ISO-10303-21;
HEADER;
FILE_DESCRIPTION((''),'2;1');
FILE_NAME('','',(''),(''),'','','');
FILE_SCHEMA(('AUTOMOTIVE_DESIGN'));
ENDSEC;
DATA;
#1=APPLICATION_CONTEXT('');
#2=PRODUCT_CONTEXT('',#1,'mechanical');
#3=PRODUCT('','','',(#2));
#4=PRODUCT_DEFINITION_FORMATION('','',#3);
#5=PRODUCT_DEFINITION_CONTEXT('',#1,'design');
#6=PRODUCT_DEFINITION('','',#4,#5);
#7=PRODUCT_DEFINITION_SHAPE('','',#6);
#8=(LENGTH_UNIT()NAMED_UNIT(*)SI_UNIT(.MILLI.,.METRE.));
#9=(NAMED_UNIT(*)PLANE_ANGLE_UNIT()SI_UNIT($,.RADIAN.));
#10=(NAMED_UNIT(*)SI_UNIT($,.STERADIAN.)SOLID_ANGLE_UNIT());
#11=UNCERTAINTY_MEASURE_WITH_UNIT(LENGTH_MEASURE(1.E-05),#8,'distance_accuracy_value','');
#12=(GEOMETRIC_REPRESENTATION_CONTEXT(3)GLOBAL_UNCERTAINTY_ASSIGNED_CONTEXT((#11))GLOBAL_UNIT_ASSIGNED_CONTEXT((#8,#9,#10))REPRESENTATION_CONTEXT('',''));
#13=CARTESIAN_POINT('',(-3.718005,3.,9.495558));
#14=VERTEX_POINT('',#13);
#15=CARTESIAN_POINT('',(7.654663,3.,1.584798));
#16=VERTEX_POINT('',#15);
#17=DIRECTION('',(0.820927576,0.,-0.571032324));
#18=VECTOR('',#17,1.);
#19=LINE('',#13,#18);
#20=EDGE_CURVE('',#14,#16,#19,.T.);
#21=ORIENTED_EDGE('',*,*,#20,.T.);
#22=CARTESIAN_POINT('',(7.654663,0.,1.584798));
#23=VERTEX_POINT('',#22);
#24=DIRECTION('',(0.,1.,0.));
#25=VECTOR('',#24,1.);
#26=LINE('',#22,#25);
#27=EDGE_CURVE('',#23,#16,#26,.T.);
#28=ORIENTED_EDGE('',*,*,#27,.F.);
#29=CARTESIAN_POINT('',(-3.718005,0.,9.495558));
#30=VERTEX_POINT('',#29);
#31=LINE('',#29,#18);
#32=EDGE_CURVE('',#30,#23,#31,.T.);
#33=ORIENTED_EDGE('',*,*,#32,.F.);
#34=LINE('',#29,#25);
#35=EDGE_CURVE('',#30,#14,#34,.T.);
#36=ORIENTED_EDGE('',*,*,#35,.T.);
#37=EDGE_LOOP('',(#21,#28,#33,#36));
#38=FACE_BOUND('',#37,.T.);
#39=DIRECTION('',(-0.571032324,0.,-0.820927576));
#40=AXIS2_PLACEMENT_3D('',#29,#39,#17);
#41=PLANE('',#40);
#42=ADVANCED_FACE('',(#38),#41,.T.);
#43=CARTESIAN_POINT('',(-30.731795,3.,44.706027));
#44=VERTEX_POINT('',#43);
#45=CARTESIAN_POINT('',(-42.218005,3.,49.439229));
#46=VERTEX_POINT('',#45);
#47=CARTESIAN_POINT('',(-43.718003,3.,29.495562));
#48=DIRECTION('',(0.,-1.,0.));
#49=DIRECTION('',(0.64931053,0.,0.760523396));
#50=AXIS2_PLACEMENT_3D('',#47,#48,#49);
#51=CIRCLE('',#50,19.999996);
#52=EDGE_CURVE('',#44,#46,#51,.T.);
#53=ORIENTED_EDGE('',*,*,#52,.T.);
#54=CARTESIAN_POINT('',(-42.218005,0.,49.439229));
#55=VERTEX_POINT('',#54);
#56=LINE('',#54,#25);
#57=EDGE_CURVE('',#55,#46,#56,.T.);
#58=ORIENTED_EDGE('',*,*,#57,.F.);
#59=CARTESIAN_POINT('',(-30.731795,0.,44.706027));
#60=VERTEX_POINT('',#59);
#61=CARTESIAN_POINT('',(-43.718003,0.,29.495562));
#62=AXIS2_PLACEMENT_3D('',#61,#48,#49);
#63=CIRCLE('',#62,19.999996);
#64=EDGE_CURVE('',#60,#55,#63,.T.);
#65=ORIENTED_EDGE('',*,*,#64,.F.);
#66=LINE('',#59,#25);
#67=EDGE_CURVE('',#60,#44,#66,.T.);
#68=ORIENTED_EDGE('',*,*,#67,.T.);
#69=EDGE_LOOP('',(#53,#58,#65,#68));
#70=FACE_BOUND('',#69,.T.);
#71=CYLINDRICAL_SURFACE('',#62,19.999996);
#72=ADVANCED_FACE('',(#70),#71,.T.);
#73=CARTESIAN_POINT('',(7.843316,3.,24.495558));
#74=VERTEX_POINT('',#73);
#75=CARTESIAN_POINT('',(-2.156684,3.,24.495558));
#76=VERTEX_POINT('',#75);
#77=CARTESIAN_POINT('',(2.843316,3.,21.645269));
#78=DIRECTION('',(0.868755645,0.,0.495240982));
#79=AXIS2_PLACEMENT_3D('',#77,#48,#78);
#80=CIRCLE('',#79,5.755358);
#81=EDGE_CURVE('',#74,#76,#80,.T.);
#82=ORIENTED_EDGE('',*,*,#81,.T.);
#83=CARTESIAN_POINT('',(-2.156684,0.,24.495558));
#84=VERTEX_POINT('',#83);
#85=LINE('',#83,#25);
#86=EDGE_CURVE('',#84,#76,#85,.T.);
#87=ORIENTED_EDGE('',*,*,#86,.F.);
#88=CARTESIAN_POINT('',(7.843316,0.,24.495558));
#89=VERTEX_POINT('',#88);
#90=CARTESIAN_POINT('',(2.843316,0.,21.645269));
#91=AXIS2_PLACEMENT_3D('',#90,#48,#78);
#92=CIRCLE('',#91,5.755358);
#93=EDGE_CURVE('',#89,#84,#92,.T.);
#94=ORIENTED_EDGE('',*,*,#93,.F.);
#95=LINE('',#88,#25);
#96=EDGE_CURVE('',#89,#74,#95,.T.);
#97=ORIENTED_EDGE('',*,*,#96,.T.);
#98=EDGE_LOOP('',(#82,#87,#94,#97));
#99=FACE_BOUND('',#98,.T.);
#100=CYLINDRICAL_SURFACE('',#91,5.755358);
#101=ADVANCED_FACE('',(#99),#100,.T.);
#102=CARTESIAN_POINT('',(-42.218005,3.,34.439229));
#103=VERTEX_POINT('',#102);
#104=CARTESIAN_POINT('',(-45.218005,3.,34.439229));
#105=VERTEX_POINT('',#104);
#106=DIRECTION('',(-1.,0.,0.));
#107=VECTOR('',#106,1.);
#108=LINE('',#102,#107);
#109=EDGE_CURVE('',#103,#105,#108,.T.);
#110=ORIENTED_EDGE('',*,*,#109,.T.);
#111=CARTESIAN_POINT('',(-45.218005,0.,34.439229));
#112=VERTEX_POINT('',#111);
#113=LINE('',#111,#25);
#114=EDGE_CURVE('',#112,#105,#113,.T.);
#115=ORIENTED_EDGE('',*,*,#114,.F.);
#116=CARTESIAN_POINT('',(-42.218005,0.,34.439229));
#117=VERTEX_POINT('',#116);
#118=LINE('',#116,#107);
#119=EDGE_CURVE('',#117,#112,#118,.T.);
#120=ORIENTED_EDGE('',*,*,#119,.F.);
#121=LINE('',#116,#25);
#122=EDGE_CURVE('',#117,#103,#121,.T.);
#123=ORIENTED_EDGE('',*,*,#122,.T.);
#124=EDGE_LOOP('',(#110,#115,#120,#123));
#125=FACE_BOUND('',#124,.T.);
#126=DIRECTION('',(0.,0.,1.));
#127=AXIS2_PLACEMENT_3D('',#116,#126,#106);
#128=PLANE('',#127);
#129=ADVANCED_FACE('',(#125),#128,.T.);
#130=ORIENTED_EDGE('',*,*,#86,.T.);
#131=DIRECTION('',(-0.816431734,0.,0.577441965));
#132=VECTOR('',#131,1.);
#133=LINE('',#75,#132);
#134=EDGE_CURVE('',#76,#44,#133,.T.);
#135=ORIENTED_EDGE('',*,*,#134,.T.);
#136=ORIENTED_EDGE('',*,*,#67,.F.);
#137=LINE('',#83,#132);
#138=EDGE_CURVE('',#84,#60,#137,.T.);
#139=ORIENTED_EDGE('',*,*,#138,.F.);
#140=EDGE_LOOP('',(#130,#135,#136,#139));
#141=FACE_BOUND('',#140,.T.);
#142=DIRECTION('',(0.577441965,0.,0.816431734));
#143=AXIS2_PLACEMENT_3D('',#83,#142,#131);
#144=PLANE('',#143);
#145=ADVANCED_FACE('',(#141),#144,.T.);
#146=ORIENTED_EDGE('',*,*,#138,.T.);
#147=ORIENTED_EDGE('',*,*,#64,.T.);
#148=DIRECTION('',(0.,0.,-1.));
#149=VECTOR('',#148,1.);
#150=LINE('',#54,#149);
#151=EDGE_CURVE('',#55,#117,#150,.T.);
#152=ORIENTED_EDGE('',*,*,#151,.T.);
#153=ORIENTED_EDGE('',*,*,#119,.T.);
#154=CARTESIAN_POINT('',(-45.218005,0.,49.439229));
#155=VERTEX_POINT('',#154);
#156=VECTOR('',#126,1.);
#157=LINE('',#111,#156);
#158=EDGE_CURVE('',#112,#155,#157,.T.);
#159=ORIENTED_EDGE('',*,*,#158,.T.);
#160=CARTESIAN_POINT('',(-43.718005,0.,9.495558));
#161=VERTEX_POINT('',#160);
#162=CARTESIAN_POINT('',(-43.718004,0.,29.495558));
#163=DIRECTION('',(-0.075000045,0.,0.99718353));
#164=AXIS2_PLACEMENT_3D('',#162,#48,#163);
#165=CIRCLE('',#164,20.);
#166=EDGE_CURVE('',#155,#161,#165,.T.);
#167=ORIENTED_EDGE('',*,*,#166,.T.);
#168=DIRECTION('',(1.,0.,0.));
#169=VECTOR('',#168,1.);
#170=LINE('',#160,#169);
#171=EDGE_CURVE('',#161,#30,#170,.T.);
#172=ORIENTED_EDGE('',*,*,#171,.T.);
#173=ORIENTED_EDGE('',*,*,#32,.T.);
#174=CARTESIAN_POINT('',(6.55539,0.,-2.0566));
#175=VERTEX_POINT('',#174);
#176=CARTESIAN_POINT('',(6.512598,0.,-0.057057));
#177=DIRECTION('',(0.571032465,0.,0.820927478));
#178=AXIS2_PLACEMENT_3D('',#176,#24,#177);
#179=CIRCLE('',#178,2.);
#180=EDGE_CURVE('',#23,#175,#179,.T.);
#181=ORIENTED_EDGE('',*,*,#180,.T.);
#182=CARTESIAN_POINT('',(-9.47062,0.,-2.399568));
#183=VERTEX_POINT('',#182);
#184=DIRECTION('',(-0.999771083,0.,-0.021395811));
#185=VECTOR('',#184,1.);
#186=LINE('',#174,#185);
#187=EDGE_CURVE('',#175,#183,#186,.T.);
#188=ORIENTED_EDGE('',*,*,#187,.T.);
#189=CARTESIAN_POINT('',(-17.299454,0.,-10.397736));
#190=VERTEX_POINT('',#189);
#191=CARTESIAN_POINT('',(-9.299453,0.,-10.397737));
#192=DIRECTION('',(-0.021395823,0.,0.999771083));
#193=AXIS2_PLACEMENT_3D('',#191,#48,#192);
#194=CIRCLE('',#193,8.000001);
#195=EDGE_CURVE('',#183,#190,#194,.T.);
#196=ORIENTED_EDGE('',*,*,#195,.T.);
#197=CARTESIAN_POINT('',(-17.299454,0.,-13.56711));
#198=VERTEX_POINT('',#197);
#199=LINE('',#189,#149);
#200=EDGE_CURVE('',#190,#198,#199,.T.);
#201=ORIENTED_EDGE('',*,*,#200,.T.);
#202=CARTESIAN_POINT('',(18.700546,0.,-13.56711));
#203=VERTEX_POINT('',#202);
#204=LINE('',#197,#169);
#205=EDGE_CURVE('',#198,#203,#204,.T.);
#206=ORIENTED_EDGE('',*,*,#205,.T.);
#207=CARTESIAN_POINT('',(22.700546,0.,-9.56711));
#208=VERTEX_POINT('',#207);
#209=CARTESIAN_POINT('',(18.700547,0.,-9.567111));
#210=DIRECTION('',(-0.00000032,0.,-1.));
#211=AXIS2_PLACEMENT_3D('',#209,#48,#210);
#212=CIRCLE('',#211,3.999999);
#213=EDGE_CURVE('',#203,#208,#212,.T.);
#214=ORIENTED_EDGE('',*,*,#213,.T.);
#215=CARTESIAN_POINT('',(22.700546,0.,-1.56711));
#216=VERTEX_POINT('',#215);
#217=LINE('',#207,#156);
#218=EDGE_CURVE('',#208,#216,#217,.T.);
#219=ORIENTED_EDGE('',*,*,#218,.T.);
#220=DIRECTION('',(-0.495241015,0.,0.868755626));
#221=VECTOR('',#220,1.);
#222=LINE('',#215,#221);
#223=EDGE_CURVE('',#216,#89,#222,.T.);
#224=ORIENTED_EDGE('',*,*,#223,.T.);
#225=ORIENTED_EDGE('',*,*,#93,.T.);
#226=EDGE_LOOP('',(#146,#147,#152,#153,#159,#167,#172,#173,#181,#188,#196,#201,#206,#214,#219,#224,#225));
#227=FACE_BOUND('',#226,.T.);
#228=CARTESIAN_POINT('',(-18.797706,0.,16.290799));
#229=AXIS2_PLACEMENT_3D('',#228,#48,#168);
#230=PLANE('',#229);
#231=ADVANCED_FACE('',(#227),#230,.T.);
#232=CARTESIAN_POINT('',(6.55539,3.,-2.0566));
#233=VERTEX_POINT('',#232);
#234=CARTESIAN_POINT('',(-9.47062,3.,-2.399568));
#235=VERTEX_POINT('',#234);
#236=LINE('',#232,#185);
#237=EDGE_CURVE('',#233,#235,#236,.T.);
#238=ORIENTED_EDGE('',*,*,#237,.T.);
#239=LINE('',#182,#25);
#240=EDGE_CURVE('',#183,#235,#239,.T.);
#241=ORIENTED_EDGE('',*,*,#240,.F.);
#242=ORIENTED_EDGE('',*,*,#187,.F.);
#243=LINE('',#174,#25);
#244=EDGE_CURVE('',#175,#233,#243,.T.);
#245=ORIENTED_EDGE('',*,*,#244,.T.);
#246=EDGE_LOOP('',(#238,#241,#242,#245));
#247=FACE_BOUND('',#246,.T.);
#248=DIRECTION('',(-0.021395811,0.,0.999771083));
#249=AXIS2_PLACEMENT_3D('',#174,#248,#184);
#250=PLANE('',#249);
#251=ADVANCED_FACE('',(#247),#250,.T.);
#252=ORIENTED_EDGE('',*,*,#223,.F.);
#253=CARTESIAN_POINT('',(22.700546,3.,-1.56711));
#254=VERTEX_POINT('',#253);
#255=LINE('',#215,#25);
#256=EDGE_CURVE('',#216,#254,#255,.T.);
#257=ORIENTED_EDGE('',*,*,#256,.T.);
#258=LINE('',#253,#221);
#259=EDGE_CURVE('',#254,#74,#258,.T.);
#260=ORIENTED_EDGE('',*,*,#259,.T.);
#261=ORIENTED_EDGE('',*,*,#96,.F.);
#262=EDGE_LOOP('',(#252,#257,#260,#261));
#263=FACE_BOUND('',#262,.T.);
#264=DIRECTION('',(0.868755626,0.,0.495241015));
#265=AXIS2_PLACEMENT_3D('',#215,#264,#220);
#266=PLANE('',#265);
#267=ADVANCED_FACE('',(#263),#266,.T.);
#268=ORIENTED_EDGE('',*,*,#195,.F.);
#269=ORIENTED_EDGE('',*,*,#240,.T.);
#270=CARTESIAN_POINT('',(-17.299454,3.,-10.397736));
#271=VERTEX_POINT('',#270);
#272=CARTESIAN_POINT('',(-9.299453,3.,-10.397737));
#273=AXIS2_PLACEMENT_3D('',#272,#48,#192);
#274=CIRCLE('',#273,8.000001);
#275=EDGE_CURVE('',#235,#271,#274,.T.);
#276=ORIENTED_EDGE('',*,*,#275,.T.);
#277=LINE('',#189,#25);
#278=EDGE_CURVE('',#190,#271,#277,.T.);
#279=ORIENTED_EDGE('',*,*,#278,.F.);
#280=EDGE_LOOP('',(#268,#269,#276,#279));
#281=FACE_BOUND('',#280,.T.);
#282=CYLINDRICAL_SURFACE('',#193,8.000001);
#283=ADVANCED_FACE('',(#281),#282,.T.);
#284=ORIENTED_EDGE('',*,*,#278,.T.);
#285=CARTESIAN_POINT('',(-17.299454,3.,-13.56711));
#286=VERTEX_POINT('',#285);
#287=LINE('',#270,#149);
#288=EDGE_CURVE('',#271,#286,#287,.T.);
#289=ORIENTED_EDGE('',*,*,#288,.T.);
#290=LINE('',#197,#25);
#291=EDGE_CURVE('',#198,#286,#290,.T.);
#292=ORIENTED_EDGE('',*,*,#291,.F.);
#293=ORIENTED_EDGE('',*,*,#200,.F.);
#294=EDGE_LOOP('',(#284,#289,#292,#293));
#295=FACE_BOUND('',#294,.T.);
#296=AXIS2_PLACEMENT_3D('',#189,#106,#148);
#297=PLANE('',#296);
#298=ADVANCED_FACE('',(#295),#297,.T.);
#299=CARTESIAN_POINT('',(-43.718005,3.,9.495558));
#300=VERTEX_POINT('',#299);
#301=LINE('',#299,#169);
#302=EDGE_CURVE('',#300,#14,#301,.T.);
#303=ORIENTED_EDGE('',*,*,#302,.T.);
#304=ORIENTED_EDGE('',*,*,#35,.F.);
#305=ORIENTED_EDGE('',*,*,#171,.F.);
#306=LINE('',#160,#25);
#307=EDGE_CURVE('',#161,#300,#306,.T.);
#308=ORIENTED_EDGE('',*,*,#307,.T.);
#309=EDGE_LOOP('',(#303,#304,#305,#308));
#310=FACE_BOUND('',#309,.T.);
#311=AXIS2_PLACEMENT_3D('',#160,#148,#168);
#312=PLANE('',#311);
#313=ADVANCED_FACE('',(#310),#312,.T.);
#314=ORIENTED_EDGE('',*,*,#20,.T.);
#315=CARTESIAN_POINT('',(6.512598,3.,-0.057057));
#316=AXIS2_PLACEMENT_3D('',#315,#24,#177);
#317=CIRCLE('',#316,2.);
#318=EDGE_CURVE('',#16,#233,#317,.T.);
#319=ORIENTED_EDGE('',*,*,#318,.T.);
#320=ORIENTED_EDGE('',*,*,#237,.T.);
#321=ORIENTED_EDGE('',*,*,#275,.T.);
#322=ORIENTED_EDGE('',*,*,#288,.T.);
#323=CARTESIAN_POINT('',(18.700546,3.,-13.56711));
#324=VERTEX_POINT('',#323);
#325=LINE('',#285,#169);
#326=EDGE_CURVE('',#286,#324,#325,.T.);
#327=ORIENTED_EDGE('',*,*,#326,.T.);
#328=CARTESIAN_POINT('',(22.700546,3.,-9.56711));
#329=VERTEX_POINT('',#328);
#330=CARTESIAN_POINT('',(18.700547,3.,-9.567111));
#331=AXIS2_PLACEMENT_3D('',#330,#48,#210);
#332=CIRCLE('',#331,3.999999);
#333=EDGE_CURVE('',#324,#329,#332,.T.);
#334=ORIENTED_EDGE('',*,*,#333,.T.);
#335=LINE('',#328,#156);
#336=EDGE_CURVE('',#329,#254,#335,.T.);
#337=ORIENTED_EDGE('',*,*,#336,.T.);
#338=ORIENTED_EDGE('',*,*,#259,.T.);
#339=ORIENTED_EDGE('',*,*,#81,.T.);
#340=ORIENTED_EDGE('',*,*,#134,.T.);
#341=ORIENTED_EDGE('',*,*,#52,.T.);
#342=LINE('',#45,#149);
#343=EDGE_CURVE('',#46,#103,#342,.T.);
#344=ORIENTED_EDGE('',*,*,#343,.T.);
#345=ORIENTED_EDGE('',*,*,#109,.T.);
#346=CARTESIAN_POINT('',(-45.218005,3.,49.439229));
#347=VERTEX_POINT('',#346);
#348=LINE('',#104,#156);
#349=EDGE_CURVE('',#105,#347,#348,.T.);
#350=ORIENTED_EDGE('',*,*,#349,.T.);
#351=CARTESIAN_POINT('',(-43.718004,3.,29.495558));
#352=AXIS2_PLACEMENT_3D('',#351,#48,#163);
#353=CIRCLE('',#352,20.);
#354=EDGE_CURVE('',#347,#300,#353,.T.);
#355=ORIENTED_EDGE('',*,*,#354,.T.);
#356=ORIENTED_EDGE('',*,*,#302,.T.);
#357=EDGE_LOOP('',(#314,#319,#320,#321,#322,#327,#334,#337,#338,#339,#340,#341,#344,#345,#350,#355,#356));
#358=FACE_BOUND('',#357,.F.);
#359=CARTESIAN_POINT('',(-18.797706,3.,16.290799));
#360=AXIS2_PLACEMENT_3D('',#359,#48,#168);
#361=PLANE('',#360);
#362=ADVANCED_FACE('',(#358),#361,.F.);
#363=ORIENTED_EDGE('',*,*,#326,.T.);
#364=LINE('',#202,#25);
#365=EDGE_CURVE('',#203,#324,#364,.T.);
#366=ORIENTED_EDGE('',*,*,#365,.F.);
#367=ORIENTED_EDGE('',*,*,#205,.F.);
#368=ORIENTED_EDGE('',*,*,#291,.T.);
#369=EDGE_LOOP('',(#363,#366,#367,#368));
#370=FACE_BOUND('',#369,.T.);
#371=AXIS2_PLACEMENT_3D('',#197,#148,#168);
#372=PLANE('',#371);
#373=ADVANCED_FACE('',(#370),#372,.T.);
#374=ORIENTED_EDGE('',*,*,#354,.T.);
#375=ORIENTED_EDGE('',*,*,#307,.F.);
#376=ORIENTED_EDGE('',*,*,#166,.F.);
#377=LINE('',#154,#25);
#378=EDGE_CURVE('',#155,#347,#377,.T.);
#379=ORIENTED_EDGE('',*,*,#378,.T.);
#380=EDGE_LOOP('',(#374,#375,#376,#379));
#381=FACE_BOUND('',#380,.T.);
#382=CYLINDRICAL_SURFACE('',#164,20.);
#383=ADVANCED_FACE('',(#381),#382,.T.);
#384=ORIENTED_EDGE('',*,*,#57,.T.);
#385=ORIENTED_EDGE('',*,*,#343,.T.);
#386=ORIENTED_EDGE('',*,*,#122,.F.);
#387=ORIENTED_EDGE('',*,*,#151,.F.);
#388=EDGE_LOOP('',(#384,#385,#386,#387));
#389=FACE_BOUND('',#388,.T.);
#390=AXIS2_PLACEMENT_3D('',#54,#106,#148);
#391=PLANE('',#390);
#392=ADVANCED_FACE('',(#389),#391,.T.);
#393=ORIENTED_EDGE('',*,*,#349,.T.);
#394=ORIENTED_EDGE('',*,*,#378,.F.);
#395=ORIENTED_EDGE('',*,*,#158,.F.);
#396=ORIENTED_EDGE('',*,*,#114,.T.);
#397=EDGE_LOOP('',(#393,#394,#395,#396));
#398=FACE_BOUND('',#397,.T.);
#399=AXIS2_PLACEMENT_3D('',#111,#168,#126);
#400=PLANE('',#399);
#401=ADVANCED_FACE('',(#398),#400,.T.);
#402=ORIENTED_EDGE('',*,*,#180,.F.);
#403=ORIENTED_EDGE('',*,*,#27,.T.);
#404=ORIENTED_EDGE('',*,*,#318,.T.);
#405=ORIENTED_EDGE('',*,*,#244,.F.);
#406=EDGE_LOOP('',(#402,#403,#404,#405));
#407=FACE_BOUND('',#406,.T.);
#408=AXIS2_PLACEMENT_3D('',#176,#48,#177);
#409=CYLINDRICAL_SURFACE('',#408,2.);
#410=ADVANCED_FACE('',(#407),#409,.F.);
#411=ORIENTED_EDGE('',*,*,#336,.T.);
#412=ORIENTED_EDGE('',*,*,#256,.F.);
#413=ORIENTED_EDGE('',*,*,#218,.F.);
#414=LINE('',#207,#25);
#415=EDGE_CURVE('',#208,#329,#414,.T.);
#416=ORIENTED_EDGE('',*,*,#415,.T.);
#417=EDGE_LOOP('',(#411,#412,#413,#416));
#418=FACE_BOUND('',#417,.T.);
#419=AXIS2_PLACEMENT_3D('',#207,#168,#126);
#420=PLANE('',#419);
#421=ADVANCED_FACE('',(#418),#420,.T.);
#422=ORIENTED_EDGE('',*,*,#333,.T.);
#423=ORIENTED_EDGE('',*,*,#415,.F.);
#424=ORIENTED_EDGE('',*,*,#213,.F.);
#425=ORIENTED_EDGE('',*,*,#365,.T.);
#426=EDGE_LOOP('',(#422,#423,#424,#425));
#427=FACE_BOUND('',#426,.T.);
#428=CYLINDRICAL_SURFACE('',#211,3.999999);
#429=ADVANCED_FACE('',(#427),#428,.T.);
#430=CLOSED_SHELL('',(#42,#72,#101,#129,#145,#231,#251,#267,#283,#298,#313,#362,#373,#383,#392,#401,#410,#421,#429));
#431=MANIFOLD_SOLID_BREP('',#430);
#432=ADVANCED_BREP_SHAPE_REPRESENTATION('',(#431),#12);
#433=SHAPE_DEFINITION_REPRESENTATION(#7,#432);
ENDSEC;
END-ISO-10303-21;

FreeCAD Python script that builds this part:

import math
import FreeCAD as App
import Part
import Sketcher
from FreeCAD import Vector
Q = App.Units.Quantity

doc = App.newDocument("Part")
body = doc.addObject("PartDesign::Body", "Body")

# Sketch on XZ plane
sketch1 = body.newObject("Sketcher::SketchObject", "Sketch")
sketch1.AttachmentSupport = (doc.getObject("XZ_Plane"), [""])
sketch1.MapMode = "FlatFace"
sketch1.addGeometry([
    Part.LineSegment(Vector(-45.2, 34.4, 0), Vector(-45.2, 49.4, 0)),  # 0
    Part.ArcOfCircle(Part.Circle(Vector(-43.7, 29.5, 0), Vector(0, 0, 1), 20), math.radians(94), math.radians(270)),  # 1
    Part.LineSegment(Vector(-43.7, 9.5, 0), Vector(-3.7, 9.5, 0)),  # 2
    Part.LineSegment(Vector(-3.7, 9.5, 0), Vector(7.7, 1.6, 0)),  # 3
    Part.ArcOfCircle(Part.Circle(Vector(6.5, -0.1, 0), Vector(0, 0, 1), 2), math.radians(-89), math.radians(55)),  # 4
    Part.LineSegment(Vector(6.6, -2.1, 0), Vector(-9.5, -2.4, 0)),  # 5
    Part.ArcOfCircle(Part.Circle(Vector(-9.3, -10.4, 0), Vector(0, 0, 1), 8), math.radians(91), math.radians(180)),  # 6
    Part.LineSegment(Vector(-17.3, -10.4, 0), Vector(-17.3, -13.6, 0)),  # 7
    Part.LineSegment(Vector(-17.3, -13.6, 0), Vector(18.7, -13.6, 0)),  # 8
    Part.ArcOfCircle(Part.Circle(Vector(18.7, -9.6, 0), Vector(0, 0, 1), 4), math.radians(-90), math.radians(0)),  # 9
    Part.LineSegment(Vector(22.7, -9.6, 0), Vector(22.7, -1.6, 0)),  # 10
    Part.LineSegment(Vector(22.7, -1.6, 0), Vector(7.8, 24.5, 0)),  # 11
    Part.ArcOfCircle(Part.Circle(Vector(2.8, 21.6, 0), Vector(0, 0, 1), 5.8), math.radians(30), math.radians(150)),  # 12
    Part.LineSegment(Vector(-2.2, 24.5, 0), Vector(-30.7, 44.7, 0)),  # 13
    Part.ArcOfCircle(Part.Circle(Vector(-43.7, 29.5, 0), Vector(0, 0, 1), 20), math.radians(50), math.radians(86)),  # 14
    Part.LineSegment(Vector(-42.2, 49.4, 0), Vector(-42.2, 34.4, 0)),  # 15
    Part.LineSegment(Vector(-42.2, 34.4, 0), Vector(-45.2, 34.4, 0)),  # 16
], False)
sketch1.addConstraint([
    Sketcher.Constraint("Coincident", 0, 2, 1, 1),
    Sketcher.Constraint("Tangent", 1, 2, 2, 1),
    Sketcher.Constraint("Coincident", 2, 2, 3, 1),
    Sketcher.Constraint("Tangent", 3, 2, 4, 2),
    Sketcher.Constraint("Tangent", 4, 1, 5, 1),
    Sketcher.Constraint("Tangent", 5, 2, 6, 1),
    Sketcher.Constraint("Tangent", 6, 2, 7, 1),
    Sketcher.Constraint("Coincident", 7, 2, 8, 1),
    Sketcher.Constraint("Tangent", 8, 2, 9, 1),
    Sketcher.Constraint("Tangent", 9, 2, 10, 1),
    Sketcher.Constraint("Coincident", 10, 2, 11, 1),
    Sketcher.Constraint("Tangent", 11, 2, 12, 1),
    Sketcher.Constraint("Coincident", 12, 2, 13, 1),
    Sketcher.Constraint("Coincident", 13, 2, 14, 1),
    Sketcher.Constraint("Coincident", 14, 2, 15, 1),
    Sketcher.Constraint("Coincident", 15, 2, 16, 1),
    Sketcher.Constraint("Coincident", 16, 2, 0, 1),
    Sketcher.Constraint("Vertical", 0),
    Sketcher.Constraint("Horizontal", 2),
    Sketcher.Constraint("Vertical", 7),
    Sketcher.Constraint("Horizontal", 8),
    Sketcher.Constraint("Vertical", 10),
    Sketcher.Constraint("Vertical", 15),
    Sketcher.Constraint("Horizontal", 16),
    Sketcher.Constraint("Coincident", 14, 3, 1, 3),
    Sketcher.Constraint("Horizontal", 11, 2, 12, 2),
    Sketcher.Constraint("Horizontal", 0, 2, 14, 2),
    Sketcher.Constraint("Radius", 1, Q("20 mm")),
    Sketcher.Constraint("Radius", 4, Q("2 mm")),
    Sketcher.Constraint("Radius", 6, Q("8.000001 mm")),
    Sketcher.Constraint("Radius", 9, Q("3.999999 mm")),
    Sketcher.Constraint("DistanceX", 2, 1, 2, 2, Q("40 mm")),
    Sketcher.Constraint("DistanceX", 8, 1, 8, 2, Q("36 mm")),
    Sketcher.Constraint("DistanceX", 16, 2, 16, 1, Q("3 mm")),
    Sketcher.Constraint("DistanceY", 0, 1, 0, 2, Q("15 mm")),
    Sketcher.Constraint("DistanceY", 10, 1, 10, 2, Q("8 mm")),
    Sketcher.Constraint("Distance", 11, Q("29.999999 mm")),
    Sketcher.Constraint("Distance", 13, Q("35 mm")),
    Sketcher.Constraint("DistanceX", 12, 3, 11, 2, Q("5 mm")),
    Sketcher.Constraint("DistanceY", 2, 2, 11, 2, Q("15 mm")),
    Sketcher.Constraint("DistanceX", 0, 2, 14, 3, Q("1.500002 mm")),
    Sketcher.Constraint("Radius", 12, Q("5.755358 mm")),
    Sketcher.Constraint("DistanceY", 4, 1, -1, 1, Q("2.0566 mm")),
    Sketcher.Constraint("DistanceX", 1, 3, 4, 3, Q("50.230602 mm")),
    Sketcher.Constraint("DistanceY", 6, 3, 14, 3, Q("39.893299 mm")),
    Sketcher.Constraint("DistanceY", 13, 2, 0, 2, Q("4.733202 mm")),
    Sketcher.Constraint("Distance", 5, Q("16.029679 mm")),
    Sketcher.Constraint("DistanceX", -1, 1, 4, 1, Q("6.55539 mm")),
])
pad1 = body.newObject("PartDesign::Pad", "Pad")
pad1.Profile = sketch1
pad1.Length = 3
pad1.Reversed = True

doc.recompute()
